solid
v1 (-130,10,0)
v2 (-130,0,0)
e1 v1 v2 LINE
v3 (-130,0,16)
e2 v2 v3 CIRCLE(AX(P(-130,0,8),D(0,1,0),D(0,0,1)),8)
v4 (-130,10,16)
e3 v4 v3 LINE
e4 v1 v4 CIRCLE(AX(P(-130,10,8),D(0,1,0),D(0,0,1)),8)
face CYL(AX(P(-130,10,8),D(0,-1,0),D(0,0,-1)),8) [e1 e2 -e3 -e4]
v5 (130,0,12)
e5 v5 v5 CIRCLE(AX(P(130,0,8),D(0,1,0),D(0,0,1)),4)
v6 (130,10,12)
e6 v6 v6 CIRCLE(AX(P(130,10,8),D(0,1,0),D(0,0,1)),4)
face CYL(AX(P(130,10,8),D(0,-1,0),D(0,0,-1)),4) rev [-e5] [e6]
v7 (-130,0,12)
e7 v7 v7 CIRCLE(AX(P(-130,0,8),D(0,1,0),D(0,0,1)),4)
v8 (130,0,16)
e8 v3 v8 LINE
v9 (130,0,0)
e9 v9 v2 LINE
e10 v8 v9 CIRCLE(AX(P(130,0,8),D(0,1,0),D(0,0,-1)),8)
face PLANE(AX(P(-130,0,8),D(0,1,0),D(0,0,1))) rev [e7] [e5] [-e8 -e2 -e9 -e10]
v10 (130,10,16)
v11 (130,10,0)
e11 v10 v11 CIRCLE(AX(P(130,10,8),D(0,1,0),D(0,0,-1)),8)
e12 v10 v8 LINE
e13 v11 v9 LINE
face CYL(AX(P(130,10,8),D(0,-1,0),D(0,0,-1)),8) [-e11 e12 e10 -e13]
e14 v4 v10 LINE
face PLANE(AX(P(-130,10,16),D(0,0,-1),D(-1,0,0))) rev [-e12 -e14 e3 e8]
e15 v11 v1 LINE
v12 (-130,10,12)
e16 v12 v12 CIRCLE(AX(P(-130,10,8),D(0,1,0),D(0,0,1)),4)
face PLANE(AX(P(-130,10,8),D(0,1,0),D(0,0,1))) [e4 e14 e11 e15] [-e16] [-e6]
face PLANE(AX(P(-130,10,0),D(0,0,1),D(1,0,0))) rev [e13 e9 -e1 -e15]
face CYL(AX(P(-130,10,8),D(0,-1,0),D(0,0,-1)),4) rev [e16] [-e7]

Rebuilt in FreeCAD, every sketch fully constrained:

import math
import FreeCAD as App
import Part
import Sketcher
from FreeCAD import Vector
Q = App.Units.Quantity

doc = App.newDocument("Part")
body = doc.addObject("PartDesign::Body", "Body")

# Sketch on XZ plane
sketch1 = body.newObject("Sketcher::SketchObject", "Sketch")
sketch1.AttachmentSupport = (doc.getObject("XZ_Plane"), [""])
sketch1.MapMode = "FlatFace"
sketch1.addGeometry([
    Part.LineSegment(Vector(130, 0, 0), Vector(-130, 0, 0)),  # 0
    Part.ArcOfCircle(Part.Circle(Vector(-130, 8, 0), Vector(0, 0, 1), 8), math.radians(90), math.radians(270)),  # 1
    Part.LineSegment(Vector(-130, 16, 0), Vector(130, 16, 0)),  # 2
    Part.ArcOfCircle(Part.Circle(Vector(130, 8, 0), Vector(0, 0, 1), 8), math.radians(-90), math.radians(90)),  # 3
    Part.Circle(Vector(130, 8, 0), Vector(0, 0, 1), 4),  # 4
    Part.Circle(Vector(-130, 8, 0), Vector(0, 0, 1), 4),  # 5
], False)
sketch1.addConstraint([
    Sketcher.Constraint("Tangent", 0, 2, 1, 2),
    Sketcher.Constraint("Tangent", 1, 1, 2, 1),
    Sketcher.Constraint("Tangent", 2, 2, 3, 2),
    Sketcher.Constraint("Tangent", 3, 1, 0, 1),
    Sketcher.Constraint("Horizontal", 0),
    Sketcher.Constraint("Horizontal", 2),
    Sketcher.Constraint("Coincident", 4, 3, 3, 3),
    Sketcher.Constraint("Coincident", 5, 3, 1, 3),
    Sketcher.Constraint("Equal", 4, 5),
    Sketcher.Constraint("Symmetric", 0, 2, 3, 1, -1, 1),
    Sketcher.Constraint("Diameter", 4, Q("8 mm")),
    Sketcher.Constraint("Radius", 1, Q("8 mm")),
    Sketcher.Constraint("DistanceX", 0, 2, 0, 1, Q("260 mm")),
])
pad1 = body.newObject("PartDesign::Pad", "Pad")
pad1.Profile = sketch1
pad1.Length = 10
pad1.Reversed = True

doc.recompute()
